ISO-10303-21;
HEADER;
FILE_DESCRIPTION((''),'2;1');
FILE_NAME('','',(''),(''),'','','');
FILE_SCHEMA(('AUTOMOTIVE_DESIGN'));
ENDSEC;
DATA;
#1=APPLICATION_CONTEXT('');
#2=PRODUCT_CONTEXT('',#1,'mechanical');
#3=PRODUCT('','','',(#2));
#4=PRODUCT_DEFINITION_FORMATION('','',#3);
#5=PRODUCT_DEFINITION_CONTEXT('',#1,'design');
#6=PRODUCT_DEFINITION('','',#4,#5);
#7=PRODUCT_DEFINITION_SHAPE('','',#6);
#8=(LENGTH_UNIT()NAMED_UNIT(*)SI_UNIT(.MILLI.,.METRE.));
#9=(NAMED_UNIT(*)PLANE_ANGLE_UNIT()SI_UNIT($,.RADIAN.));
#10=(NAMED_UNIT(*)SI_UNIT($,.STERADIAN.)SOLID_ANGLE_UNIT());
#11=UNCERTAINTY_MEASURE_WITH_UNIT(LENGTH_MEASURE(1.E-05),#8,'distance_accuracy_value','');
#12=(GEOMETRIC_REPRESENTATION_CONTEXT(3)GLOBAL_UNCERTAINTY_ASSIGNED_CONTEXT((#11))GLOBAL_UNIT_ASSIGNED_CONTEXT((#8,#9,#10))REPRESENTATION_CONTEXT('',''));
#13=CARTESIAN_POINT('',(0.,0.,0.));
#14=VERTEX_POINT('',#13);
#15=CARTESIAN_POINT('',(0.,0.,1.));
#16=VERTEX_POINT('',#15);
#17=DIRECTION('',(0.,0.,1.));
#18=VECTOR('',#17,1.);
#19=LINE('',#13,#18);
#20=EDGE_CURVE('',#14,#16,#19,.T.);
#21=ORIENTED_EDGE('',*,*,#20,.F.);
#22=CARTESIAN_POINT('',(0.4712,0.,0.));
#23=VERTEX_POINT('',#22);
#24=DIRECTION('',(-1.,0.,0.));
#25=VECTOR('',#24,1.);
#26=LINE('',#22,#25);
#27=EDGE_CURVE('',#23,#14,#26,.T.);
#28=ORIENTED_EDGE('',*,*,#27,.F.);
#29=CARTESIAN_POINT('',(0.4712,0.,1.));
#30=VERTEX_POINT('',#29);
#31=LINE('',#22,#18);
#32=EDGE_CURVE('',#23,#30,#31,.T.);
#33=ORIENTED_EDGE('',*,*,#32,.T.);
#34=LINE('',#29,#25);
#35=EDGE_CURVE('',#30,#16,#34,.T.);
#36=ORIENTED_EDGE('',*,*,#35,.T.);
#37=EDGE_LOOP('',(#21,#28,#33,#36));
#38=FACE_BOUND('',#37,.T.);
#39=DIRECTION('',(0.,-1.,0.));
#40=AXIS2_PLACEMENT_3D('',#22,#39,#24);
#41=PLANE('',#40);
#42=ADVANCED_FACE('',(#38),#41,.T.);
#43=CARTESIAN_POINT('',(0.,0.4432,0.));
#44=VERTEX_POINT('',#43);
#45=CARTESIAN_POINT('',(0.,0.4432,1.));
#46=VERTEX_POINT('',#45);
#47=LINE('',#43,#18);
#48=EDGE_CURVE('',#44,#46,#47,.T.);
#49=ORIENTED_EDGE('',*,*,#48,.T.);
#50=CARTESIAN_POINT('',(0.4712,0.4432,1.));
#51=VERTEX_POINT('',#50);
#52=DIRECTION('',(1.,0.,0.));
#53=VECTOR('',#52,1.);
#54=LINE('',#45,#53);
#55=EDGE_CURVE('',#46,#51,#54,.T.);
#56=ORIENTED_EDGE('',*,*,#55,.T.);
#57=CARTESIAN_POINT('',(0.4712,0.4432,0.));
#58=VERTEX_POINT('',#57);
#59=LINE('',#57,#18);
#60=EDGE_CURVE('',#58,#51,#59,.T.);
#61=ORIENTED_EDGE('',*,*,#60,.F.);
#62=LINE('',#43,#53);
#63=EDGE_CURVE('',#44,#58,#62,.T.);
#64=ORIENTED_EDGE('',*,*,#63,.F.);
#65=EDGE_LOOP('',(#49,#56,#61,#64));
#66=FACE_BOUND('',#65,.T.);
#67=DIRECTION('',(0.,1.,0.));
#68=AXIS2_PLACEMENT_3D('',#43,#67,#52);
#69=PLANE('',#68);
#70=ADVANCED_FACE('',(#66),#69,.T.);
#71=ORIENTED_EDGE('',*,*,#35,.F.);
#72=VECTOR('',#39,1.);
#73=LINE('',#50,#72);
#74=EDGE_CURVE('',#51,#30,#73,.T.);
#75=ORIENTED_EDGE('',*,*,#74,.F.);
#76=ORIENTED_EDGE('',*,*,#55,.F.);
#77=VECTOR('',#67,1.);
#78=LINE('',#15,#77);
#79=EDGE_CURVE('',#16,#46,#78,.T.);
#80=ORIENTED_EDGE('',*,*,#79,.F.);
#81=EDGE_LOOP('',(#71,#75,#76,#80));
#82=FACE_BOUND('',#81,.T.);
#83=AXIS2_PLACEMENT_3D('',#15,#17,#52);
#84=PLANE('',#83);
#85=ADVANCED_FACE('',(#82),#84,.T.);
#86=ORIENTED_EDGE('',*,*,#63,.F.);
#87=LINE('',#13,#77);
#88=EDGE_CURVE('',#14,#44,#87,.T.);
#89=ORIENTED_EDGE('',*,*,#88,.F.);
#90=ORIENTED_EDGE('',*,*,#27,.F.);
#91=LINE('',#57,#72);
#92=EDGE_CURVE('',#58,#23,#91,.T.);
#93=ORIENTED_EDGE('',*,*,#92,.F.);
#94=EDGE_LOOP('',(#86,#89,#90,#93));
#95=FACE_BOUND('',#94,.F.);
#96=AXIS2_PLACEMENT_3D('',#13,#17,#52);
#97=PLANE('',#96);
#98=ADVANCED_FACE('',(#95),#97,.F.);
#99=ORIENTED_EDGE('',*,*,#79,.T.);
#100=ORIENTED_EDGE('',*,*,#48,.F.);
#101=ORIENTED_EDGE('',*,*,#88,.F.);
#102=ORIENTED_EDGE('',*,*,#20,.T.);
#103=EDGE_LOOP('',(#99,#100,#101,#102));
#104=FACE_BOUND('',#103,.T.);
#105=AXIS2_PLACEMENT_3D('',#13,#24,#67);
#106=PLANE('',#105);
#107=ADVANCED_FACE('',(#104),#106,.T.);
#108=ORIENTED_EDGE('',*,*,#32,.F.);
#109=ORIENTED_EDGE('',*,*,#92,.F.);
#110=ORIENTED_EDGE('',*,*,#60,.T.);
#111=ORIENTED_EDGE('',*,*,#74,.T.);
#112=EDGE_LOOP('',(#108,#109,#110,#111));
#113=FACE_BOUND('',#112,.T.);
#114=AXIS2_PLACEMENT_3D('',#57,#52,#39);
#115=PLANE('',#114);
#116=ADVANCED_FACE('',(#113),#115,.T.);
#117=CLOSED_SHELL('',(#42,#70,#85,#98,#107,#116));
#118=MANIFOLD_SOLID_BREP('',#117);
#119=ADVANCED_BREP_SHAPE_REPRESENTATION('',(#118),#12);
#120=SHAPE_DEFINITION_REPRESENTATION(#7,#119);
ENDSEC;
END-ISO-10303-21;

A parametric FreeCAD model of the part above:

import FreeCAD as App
import Part
import Sketcher
from FreeCAD import Vector


def add_polygon(sketch, points):
    """Adds a closed chain of lines whose ends are joined by coincident constraints."""
    first, n = sketch.GeometryCount, len(points)
    for a, b in zip(points, points[1:] + points[:1]):
        sketch.addGeometry(Part.LineSegment(App.Vector(*a, 0), App.Vector(*b, 0)), False)
    for i in range(n):
        sketch.addConstraint(Sketcher.Constraint("Coincident", first + i, 2, first + (i + 1) % n, 1))

doc = App.newDocument("Part")
body = doc.addObject("PartDesign::Body", "Body")

sketch1 = body.newObject("Sketcher::SketchObject", "Sketch")
sketch1.AttachmentSupport = (doc.getObject("XY_Plane"), [""])
sketch1.MapMode = "FlatFace"
add_polygon(sketch1, [(0.4712, 0.4432), (0, 0.4432), (0, 0), (0.4712, 0)])
sketch1.addConstraint([
    Sketcher.Constraint("Horizontal", 0),
    Sketcher.Constraint("Vertical", 1),
    Sketcher.Constraint("Horizontal", 2),
    Sketcher.Constraint("Vertical", 3),
    Sketcher.Constraint("Coincident", 1, 2, -1, 1),
    Sketcher.Constraint("DistanceX", 0, 2, 0, 1, 0.4712),
    Sketcher.Constraint("DistanceY", 1, 2, 1, 1, 0.4432),
])
pad1 = body.newObject("PartDesign::Pad", "Pad")
pad1.Profile = sketch1
pad1.Length = 1

doc.recompute()
